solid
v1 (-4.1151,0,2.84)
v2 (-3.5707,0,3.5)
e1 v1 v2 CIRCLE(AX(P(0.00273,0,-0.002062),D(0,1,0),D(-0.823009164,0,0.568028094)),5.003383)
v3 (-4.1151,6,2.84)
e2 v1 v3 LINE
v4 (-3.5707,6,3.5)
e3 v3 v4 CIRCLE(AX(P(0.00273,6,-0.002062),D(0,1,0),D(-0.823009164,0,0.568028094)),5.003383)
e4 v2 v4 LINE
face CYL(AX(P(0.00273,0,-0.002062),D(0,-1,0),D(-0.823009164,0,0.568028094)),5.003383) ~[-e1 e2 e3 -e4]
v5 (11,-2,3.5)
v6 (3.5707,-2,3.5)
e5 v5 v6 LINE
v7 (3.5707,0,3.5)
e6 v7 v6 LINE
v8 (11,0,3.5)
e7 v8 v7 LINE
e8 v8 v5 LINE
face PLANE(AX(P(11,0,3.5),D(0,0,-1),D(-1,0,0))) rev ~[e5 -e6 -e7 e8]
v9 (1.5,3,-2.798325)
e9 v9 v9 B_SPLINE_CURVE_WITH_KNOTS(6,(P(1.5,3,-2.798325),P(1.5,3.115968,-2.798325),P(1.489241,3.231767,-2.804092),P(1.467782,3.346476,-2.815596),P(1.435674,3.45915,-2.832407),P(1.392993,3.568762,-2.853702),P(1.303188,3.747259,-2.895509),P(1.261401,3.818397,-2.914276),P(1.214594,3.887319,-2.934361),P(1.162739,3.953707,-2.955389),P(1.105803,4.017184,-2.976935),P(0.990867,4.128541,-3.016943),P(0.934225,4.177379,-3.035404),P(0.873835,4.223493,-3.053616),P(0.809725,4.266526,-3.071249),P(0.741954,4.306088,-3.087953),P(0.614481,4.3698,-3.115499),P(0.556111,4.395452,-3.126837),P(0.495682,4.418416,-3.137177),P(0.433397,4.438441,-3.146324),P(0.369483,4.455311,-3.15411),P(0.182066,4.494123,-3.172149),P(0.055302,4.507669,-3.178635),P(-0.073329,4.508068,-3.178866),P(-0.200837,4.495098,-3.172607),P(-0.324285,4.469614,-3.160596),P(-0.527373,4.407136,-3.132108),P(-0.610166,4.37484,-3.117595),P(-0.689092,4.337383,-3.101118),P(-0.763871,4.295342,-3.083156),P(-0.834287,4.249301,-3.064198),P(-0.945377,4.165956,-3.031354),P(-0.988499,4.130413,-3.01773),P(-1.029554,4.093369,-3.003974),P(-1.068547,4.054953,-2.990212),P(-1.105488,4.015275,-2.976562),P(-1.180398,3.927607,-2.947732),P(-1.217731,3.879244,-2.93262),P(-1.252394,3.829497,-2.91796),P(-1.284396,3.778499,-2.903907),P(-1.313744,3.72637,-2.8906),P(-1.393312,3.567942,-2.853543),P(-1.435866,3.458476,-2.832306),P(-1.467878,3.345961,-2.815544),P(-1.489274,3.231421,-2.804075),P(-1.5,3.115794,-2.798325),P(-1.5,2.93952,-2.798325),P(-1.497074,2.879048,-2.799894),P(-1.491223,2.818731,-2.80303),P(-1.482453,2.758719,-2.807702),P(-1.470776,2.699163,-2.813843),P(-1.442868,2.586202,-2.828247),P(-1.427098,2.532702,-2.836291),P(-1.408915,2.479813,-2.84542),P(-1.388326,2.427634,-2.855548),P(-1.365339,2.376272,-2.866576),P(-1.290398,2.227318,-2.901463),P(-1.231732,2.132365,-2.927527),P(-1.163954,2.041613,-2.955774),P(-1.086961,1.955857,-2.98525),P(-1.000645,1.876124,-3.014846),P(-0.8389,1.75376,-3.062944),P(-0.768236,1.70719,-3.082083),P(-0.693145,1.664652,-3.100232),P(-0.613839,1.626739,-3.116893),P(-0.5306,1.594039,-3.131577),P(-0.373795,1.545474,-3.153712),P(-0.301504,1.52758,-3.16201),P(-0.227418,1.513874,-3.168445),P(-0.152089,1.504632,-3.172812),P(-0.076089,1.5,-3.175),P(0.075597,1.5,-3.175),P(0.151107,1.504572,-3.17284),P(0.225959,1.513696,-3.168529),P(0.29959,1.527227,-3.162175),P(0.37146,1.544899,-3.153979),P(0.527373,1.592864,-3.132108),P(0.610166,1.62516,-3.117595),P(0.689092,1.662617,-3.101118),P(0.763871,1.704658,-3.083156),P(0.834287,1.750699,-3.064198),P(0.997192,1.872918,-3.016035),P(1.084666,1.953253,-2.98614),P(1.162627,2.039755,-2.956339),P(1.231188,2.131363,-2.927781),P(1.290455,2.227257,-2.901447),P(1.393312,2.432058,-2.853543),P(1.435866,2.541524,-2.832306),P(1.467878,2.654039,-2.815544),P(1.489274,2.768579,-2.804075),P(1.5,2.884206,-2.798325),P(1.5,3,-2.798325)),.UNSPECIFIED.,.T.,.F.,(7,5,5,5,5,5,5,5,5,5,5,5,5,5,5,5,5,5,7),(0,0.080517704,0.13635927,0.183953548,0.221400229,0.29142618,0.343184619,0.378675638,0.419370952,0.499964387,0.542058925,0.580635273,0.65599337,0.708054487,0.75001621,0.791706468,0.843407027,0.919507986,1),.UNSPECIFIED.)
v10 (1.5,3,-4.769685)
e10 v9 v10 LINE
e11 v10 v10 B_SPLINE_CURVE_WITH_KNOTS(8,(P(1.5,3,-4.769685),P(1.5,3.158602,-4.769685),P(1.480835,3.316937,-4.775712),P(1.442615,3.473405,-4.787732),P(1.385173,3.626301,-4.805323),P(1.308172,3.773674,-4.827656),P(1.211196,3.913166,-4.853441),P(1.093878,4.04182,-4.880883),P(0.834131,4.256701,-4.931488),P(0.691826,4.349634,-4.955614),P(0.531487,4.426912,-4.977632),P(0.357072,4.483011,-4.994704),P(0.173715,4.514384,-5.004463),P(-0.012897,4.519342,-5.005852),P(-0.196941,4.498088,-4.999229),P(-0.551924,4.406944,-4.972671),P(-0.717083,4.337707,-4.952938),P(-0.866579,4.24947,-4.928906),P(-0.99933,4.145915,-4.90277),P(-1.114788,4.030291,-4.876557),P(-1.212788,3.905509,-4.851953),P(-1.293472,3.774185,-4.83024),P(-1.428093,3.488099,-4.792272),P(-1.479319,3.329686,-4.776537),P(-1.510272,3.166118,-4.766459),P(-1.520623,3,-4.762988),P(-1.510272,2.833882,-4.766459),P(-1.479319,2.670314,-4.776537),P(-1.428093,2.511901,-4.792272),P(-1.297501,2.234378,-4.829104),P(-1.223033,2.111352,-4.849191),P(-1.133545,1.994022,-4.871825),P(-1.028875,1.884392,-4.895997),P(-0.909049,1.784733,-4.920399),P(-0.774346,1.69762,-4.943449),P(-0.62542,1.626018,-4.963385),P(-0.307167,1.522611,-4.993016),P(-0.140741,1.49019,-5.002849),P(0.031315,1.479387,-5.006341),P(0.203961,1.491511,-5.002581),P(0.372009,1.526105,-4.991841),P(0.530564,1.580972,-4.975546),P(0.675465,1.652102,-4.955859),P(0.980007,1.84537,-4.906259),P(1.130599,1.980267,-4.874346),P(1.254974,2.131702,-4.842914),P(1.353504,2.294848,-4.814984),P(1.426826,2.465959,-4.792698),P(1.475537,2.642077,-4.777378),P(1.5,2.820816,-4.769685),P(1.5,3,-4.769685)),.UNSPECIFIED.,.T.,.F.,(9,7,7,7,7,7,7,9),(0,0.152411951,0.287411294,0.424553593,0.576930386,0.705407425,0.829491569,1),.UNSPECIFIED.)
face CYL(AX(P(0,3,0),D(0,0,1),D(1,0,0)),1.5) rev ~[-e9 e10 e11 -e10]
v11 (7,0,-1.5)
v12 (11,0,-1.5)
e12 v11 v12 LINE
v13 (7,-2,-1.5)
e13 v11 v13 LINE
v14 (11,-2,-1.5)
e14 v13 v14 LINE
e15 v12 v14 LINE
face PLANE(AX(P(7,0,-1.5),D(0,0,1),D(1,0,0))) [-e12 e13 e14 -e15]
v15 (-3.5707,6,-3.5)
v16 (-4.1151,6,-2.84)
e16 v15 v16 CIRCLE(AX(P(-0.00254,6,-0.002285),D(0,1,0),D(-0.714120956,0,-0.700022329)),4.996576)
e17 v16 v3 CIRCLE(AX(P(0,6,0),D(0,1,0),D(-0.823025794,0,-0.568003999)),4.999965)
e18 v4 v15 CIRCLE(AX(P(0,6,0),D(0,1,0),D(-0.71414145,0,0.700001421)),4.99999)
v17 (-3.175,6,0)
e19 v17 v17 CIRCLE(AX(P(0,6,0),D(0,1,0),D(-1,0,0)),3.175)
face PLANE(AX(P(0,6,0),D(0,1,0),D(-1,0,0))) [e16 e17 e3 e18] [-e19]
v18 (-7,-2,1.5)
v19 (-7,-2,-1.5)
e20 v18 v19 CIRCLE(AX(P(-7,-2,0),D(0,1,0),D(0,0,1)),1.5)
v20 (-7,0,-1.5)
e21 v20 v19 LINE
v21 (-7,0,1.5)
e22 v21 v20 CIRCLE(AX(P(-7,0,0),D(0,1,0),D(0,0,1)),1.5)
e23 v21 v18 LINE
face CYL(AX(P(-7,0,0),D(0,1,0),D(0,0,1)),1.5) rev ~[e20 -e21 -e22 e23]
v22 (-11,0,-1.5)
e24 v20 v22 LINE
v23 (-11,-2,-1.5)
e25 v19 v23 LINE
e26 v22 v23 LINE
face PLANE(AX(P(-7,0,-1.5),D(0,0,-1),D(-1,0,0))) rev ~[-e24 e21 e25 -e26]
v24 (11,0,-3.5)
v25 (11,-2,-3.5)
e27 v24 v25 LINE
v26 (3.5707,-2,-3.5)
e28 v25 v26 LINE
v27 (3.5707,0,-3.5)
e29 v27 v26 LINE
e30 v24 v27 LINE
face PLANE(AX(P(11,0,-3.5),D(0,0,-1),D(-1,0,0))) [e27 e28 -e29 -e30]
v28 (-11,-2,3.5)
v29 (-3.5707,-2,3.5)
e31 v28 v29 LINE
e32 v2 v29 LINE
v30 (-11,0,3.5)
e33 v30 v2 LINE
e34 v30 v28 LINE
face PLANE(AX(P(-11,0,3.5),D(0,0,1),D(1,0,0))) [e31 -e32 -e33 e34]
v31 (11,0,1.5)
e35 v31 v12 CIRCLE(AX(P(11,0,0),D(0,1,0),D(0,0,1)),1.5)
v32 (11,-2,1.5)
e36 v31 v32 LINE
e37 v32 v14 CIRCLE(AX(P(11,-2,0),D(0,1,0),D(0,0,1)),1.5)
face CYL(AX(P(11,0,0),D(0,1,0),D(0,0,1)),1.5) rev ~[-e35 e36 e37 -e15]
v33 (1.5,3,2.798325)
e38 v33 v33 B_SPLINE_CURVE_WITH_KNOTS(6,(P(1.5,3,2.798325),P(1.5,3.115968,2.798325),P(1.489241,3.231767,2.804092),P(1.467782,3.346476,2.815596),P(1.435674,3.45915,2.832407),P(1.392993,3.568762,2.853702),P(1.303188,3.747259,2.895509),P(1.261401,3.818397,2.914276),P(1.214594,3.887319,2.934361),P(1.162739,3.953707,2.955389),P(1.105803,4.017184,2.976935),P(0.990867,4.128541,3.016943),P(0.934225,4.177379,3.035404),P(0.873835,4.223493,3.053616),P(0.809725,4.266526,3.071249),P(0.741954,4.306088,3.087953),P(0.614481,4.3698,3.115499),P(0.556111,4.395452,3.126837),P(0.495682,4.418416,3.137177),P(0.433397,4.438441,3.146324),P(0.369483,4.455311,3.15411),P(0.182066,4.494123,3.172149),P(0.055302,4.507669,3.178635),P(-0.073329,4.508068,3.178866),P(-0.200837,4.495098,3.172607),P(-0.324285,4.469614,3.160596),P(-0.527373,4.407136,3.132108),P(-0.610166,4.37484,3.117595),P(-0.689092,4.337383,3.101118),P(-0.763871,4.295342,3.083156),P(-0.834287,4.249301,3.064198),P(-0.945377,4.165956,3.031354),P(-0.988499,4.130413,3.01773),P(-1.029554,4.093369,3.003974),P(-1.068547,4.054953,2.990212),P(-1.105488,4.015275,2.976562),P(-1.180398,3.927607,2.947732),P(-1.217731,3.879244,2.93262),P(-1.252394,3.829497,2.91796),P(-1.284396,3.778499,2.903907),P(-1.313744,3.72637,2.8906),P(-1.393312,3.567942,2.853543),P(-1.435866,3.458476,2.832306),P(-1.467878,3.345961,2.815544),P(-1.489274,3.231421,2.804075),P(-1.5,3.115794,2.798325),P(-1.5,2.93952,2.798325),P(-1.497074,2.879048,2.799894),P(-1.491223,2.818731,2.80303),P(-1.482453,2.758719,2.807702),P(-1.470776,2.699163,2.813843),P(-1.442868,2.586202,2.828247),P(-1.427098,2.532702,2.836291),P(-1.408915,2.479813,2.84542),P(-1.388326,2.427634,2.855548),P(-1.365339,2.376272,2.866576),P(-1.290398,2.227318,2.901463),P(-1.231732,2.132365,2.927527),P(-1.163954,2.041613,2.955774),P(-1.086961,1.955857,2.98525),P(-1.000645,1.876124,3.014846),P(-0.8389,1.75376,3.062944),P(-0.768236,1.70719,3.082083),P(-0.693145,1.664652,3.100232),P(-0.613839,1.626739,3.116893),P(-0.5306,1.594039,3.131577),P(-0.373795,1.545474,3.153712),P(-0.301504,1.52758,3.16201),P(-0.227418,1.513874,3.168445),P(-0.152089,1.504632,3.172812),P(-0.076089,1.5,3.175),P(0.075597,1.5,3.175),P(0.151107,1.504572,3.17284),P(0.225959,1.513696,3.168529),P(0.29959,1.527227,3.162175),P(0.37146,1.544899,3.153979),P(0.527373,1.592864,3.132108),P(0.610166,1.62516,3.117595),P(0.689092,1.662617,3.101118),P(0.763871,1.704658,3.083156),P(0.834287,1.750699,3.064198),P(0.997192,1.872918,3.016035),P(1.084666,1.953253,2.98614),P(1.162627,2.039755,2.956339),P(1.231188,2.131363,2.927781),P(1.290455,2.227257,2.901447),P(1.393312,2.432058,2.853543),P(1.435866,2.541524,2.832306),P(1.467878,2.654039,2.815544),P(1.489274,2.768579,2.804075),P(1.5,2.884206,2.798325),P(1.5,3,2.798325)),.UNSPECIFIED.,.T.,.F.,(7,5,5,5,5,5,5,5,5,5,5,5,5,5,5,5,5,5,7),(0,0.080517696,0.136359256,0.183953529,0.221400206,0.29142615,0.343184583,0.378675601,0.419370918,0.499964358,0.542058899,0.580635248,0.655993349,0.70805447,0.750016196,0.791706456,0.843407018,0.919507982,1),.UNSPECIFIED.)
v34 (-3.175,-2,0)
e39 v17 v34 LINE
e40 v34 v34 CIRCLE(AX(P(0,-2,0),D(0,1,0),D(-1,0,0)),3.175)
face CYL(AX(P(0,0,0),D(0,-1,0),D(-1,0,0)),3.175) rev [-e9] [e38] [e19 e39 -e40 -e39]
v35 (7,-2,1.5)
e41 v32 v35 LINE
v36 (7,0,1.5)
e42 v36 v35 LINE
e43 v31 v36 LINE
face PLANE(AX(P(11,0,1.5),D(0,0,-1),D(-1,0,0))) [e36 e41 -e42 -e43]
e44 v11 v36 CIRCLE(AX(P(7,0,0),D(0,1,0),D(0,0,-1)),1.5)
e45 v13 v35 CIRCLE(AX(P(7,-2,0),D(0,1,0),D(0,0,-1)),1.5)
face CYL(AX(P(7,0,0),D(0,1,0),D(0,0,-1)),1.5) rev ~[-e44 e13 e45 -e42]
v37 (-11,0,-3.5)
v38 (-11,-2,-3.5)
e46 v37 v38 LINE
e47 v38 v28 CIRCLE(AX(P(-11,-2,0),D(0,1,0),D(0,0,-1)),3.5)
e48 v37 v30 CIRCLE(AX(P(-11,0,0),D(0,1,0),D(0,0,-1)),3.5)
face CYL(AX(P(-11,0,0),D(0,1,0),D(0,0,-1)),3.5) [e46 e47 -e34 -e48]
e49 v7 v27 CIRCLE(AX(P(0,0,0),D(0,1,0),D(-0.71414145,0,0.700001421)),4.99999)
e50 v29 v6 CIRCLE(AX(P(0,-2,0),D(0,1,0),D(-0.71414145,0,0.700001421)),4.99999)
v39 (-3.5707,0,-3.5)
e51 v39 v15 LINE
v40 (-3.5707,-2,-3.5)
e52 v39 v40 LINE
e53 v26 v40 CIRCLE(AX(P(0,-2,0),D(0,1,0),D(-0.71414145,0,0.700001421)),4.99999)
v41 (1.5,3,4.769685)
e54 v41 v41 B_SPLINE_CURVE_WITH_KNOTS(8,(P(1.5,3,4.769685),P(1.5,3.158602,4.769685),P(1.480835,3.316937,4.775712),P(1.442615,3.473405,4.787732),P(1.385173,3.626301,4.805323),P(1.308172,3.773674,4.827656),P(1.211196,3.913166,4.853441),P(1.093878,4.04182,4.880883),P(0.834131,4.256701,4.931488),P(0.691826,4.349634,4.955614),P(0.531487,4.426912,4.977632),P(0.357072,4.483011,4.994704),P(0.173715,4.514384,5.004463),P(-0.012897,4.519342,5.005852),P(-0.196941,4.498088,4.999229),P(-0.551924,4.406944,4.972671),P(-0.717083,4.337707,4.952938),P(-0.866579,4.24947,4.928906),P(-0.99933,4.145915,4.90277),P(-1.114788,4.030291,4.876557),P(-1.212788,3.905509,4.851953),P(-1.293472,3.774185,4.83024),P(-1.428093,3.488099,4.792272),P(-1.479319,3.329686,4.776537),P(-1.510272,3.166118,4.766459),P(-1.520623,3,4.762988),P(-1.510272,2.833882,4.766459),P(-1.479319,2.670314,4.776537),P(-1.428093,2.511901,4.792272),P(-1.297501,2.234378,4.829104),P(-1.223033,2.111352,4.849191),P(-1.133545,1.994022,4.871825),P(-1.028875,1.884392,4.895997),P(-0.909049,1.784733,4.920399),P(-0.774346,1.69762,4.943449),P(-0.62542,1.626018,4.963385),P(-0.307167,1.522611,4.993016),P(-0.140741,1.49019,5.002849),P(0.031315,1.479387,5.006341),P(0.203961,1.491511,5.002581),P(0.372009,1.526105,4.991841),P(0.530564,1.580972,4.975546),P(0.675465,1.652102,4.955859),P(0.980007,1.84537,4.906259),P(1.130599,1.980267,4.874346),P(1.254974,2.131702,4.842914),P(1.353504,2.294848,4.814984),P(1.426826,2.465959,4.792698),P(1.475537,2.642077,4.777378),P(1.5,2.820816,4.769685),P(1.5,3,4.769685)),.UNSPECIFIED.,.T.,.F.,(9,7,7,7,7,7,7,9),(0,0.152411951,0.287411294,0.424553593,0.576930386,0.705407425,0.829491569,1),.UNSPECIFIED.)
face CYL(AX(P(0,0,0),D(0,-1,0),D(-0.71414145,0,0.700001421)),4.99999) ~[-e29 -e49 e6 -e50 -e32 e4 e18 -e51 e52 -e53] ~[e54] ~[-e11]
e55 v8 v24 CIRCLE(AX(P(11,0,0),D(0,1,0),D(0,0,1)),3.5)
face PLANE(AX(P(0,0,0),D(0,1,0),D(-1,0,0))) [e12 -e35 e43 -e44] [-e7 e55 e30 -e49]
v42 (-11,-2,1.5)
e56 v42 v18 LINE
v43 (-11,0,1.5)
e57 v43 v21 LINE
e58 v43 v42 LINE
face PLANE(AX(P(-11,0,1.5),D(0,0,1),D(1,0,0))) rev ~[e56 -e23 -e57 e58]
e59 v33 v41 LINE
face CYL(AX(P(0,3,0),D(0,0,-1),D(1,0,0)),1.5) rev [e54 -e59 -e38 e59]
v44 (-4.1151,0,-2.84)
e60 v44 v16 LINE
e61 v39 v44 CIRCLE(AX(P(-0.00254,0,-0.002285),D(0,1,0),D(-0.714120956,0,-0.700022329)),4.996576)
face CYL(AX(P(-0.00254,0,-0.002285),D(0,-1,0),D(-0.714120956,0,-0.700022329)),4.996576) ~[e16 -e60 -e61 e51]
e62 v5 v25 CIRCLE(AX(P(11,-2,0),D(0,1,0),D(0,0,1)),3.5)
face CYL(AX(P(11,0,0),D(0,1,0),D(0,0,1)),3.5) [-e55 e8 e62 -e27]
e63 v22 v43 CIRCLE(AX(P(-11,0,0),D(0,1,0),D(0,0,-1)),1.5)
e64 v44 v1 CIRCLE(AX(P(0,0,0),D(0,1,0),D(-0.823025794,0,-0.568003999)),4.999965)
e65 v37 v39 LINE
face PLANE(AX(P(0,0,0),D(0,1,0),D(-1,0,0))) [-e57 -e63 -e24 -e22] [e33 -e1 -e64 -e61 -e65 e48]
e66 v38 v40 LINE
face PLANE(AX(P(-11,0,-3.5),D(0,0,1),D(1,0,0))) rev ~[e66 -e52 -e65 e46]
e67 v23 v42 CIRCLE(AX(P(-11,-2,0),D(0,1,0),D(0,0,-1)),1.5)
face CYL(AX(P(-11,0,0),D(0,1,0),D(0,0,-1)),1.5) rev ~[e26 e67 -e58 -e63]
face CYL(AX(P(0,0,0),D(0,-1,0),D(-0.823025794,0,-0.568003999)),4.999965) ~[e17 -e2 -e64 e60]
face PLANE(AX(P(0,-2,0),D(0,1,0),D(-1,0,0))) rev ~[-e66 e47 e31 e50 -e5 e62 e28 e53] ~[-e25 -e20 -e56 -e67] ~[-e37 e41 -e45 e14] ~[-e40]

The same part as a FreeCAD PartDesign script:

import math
import FreeCAD as App
import Part
import Sketcher
Q = App.Units.Quantity

doc = App.newDocument("Part")
body = doc.addObject("PartDesign::Body", "Body")

# Sketch on XZ plane
sketch1 = doc.addObject("Sketcher::SketchObject", "Sketch")
body.addObject(sketch1)
sketch1.AttachmentSupport = (doc.XZ_Plane, [""])
sketch1.MapMode = "FlatFace"
sketch1.addGeometry([
    Part.ArcOfCircle(Part.Circle(App.Vector(0, 0, 0), App.Vector(0, 0, 1), 5), math.radians(-136), math.radians(-44)),  # 0
    Part.LineSegment(App.Vector(-3.6, -3.5, 0), App.Vector(-11, -3.5, 0)),  # 1
    Part.ArcOfCircle(Part.Circle(App.Vector(-11, 0, 0), App.Vector(0, 0, 1), 3.5), math.radians(90), math.radians(270)),  # 2
    Part.LineSegment(App.Vector(-11, 3.5, 0), App.Vector(-3.6, 3.5, 0)),  # 3
    Part.ArcOfCircle(Part.Circle(App.Vector(0, 0, 0), App.Vector(0, 0, 1), 5), math.radians(44), math.radians(136)),  # 4
    Part.LineSegment(App.Vector(3.6, 3.5, 0), App.Vector(11, 3.5, 0)),  # 5
    Part.ArcOfCircle(Part.Circle(App.Vector(11, 0, 0), App.Vector(0, 0, 1), 3.5), math.radians(-90), math.radians(90)),  # 6
    Part.LineSegment(App.Vector(11, -3.5, 0), App.Vector(3.6, -3.5, 0)),  # 7
    Part.Circle(App.Vector(0, 0, 0), App.Vector(0, 0, 1), 3.2),  # 8
    Part.ArcOfCircle(Part.Circle(App.Vector(-11, 0, 0), App.Vector(0, 0, 1), 1.5), math.radians(90), math.radians(270)),  # 9
    Part.LineSegment(App.Vector(-11, -1.5, 0), App.Vector(-7, -1.5, 0)),  # 10
    Part.ArcOfCircle(Part.Circle(App.Vector(-7, 0, 0), App.Vector(0, 0, 1), 1.5), math.radians(-90), math.radians(90)),  # 11
    Part.LineSegment(App.Vector(-7, 1.5, 0), App.Vector(-11, 1.5, 0)),  # 12
    Part.LineSegment(App.Vector(7, -1.5, 0), App.Vector(11, -1.5, 0)),  # 13
    Part.ArcOfCircle(Part.Circle(App.Vector(11, 0, 0), App.Vector(0, 0, 1), 1.5), math.radians(-90), math.radians(90)),  # 14
    Part.LineSegment(App.Vector(11, 1.5, 0), App.Vector(7, 1.5, 0)),  # 15
    Part.ArcOfCircle(Part.Circle(App.Vector(7, 0, 0), App.Vector(0, 0, 1), 1.5), math.radians(90), math.radians(270)),  # 16
], False)
sketch1.addConstraint([
    Sketcher.Constraint("Coincident", 0, 1, 1, 1),
    Sketcher.Constraint("Tangent", 1, 2, 2, 2),
    Sketcher.Constraint("Tangent", 2, 1, 3, 1),
    Sketcher.Constraint("Coincident", 3, 2, 4, 2),
    Sketcher.Constraint("Coincident", 4, 1, 5, 1),
    Sketcher.Constraint("Tangent", 5, 2, 6, 2),
    Sketcher.Constraint("Tangent", 6, 1, 7, 1),
    Sketcher.Constraint("Coincident", 7, 2, 0, 2),
    Sketcher.Constraint("Tangent", 9, 2, 10, 1),
    Sketcher.Constraint("Tangent", 10, 2, 11, 1),
    Sketcher.Constraint("Tangent", 11, 2, 12, 1),
    Sketcher.Constraint("Tangent", 12, 2, 9, 1),
    Sketcher.Constraint("Tangent", 13, 2, 14, 1),
    Sketcher.Constraint("Tangent", 14, 2, 15, 1),
    Sketcher.Constraint("Tangent", 15, 2, 16, 1),
    Sketcher.Constraint("Tangent", 16, 2, 13, 1),
    Sketcher.Constraint("Horizontal", 1),
    Sketcher.Constraint("Horizontal", 3),
    Sketcher.Constraint("Horizontal", 5),
    Sketcher.Constraint("Horizontal", 7),
    Sketcher.Constraint("Horizontal", 10),
    Sketcher.Constraint("Horizontal", 12),
    Sketcher.Constraint("Horizontal", 13),
    Sketcher.Constraint("Horizontal", 15),
    Sketcher.Constraint("Coincident", 0, 3, -1, 1),
    Sketcher.Constraint("Coincident", 4, 3, -1, 1),
    Sketcher.Constraint("Coincident", 8, 3, -1, 1),
    Sketcher.Constraint("Coincident", 9, 3, 2, 3),
    Sketcher.Constraint("Coincident", 14, 3, 6, 3),
    Sketcher.Constraint("Equal", 0, 4),
    Sketcher.Constraint("Equal", 2, 6),
    Sketcher.Constraint("Equal", 11, 14),
    Sketcher.Constraint("Symmetric", 2, 3, 6, 3, -1, 1),
    Sketcher.Constraint("Symmetric", 11, 3, 16, 3, -2),
    Sketcher.Constraint("Radius", 0, Q("5 mm")),
    Sketcher.Constraint("Radius", 2, Q("3.5 mm")),
    Sketcher.Constraint("Radius", 9, Q("1.5 mm")),
    Sketcher.Constraint("Diameter", 8, Q("6.35 mm")),
    Sketcher.Constraint("DistanceX", 10, 1, 10, 2, Q("4 mm")),
    Sketcher.Constraint("DistanceX", 11, 3, -1, 1, Q("7 mm")),
])
pad1 = doc.addObject("PartDesign::Pad", "Pad")
body.addObject(pad1)
pad1.Profile = sketch1
pad1.Length = 2

# Sketch on XZ plane
sketch2 = doc.addObject("Sketcher::SketchObject", "Sketch001")
body.addObject(sketch2)
sketch2.AttachmentSupport = (doc.XZ_Plane, [""])
sketch2.MapMode = "FlatFace"
sketch2.addGeometry([
    Part.ArcOfCircle(Part.Circle(App.Vector(0, 0, 0), App.Vector(0, 0, 1), 4.999965), math.radians(145.388845), math.radians(214.611155)),  # 0
    Part.ArcOfCircle(Part.Circle(App.Vector(0.00273, -0.002062, 0), App.Vector(0, 0, 1), 5.003383), math.radians(135.577902), math.radians(145.387167)),  # 1
    Part.ArcOfCircle(Part.Circle(App.Vector(0, 0, 0), App.Vector(0, 0, 1), 4.99999), math.radians(-135.572882), math.radians(135.572882)),  # 2
    Part.ArcOfCircle(Part.Circle(App.Vector(-0.00254, -0.002285, 0), App.Vector(0, 0, 1), 4.996576), math.radians(-145.393865), math.radians(-135.571205)),  # 3
    Part.Circle(App.Vector(0, 0, 0), App.Vector(0, 0, 1), 3.175),  # 4
], False)
sketch2.addConstraint([
    Sketcher.Constraint("Coincident", 0, 1, 1, 2),
    Sketcher.Constraint("Coincident", 1, 1, 2, 2),
    Sketcher.Constraint("Coincident", 2, 1, 3, 2),
    Sketcher.Constraint("Coincident", 3, 1, 0, 2),
    Sketcher.Constraint("Coincident", 0, 3, -1, 1),
    Sketcher.Constraint("Coincident", 2, 3, -1, 1),
    Sketcher.Constraint("Coincident", 4, 3, -1, 1),
    Sketcher.Constraint("Radius", 0, Q("5 mm")),
    Sketcher.Constraint("Radius", 2, Q("5 mm")),
    Sketcher.Constraint("Diameter", 4, Q("6.35 mm")),
    Sketcher.Constraint("DistanceY", -1, 1, 1, 1, Q("3.5 mm")),
    Sketcher.Constraint("DistanceY", 2, 1, -1, 1, Q("3.5 mm")),
    Sketcher.Constraint("Radius", 1, Q("5.0034 mm")),
    Sketcher.Constraint("Radius", 3, Q("4.9966 mm")),
    Sketcher.Constraint("DistanceY", -1, 1, 0, 1, Q("2.84 mm")),
    Sketcher.Constraint("DistanceY", 3, 1, -1, 1, Q("2.84 mm")),
])
pad2 = doc.addObject("PartDesign::Pad", "Pad001")
body.addObject(pad2)
pad2.Profile = sketch2
pad2.Length = 6
pad2.Reversed = True

# Sketch on XY plane
sketch3 = doc.addObject("Sketcher::SketchObject", "Sketch002")
body.addObject(sketch3)
sketch3.AttachmentSupport = (doc.XY_Plane, [""])
sketch3.MapMode = "FlatFace"
sketch3.addGeometry(Part.Circle(App.Vector(0, 3, 0), App.Vector(0, 0, 1), 1.5), False)
sketch3.addConstraint([
    Sketcher.Constraint("PointOnObject", 0, 3, -2),
    Sketcher.Constraint("Diameter", 0, Q("3 mm")),
    Sketcher.Constraint("DistanceY", -1, 1, 0, 3, Q("3 mm")),
])
pocket1 = doc.addObject("PartDesign::Pocket", "Pocket")
body.addObject(pocket1)
pocket1.Profile = sketch3
pocket1.Type = "ThroughAll"
pocket1.Midplane = True

doc.recompute()
